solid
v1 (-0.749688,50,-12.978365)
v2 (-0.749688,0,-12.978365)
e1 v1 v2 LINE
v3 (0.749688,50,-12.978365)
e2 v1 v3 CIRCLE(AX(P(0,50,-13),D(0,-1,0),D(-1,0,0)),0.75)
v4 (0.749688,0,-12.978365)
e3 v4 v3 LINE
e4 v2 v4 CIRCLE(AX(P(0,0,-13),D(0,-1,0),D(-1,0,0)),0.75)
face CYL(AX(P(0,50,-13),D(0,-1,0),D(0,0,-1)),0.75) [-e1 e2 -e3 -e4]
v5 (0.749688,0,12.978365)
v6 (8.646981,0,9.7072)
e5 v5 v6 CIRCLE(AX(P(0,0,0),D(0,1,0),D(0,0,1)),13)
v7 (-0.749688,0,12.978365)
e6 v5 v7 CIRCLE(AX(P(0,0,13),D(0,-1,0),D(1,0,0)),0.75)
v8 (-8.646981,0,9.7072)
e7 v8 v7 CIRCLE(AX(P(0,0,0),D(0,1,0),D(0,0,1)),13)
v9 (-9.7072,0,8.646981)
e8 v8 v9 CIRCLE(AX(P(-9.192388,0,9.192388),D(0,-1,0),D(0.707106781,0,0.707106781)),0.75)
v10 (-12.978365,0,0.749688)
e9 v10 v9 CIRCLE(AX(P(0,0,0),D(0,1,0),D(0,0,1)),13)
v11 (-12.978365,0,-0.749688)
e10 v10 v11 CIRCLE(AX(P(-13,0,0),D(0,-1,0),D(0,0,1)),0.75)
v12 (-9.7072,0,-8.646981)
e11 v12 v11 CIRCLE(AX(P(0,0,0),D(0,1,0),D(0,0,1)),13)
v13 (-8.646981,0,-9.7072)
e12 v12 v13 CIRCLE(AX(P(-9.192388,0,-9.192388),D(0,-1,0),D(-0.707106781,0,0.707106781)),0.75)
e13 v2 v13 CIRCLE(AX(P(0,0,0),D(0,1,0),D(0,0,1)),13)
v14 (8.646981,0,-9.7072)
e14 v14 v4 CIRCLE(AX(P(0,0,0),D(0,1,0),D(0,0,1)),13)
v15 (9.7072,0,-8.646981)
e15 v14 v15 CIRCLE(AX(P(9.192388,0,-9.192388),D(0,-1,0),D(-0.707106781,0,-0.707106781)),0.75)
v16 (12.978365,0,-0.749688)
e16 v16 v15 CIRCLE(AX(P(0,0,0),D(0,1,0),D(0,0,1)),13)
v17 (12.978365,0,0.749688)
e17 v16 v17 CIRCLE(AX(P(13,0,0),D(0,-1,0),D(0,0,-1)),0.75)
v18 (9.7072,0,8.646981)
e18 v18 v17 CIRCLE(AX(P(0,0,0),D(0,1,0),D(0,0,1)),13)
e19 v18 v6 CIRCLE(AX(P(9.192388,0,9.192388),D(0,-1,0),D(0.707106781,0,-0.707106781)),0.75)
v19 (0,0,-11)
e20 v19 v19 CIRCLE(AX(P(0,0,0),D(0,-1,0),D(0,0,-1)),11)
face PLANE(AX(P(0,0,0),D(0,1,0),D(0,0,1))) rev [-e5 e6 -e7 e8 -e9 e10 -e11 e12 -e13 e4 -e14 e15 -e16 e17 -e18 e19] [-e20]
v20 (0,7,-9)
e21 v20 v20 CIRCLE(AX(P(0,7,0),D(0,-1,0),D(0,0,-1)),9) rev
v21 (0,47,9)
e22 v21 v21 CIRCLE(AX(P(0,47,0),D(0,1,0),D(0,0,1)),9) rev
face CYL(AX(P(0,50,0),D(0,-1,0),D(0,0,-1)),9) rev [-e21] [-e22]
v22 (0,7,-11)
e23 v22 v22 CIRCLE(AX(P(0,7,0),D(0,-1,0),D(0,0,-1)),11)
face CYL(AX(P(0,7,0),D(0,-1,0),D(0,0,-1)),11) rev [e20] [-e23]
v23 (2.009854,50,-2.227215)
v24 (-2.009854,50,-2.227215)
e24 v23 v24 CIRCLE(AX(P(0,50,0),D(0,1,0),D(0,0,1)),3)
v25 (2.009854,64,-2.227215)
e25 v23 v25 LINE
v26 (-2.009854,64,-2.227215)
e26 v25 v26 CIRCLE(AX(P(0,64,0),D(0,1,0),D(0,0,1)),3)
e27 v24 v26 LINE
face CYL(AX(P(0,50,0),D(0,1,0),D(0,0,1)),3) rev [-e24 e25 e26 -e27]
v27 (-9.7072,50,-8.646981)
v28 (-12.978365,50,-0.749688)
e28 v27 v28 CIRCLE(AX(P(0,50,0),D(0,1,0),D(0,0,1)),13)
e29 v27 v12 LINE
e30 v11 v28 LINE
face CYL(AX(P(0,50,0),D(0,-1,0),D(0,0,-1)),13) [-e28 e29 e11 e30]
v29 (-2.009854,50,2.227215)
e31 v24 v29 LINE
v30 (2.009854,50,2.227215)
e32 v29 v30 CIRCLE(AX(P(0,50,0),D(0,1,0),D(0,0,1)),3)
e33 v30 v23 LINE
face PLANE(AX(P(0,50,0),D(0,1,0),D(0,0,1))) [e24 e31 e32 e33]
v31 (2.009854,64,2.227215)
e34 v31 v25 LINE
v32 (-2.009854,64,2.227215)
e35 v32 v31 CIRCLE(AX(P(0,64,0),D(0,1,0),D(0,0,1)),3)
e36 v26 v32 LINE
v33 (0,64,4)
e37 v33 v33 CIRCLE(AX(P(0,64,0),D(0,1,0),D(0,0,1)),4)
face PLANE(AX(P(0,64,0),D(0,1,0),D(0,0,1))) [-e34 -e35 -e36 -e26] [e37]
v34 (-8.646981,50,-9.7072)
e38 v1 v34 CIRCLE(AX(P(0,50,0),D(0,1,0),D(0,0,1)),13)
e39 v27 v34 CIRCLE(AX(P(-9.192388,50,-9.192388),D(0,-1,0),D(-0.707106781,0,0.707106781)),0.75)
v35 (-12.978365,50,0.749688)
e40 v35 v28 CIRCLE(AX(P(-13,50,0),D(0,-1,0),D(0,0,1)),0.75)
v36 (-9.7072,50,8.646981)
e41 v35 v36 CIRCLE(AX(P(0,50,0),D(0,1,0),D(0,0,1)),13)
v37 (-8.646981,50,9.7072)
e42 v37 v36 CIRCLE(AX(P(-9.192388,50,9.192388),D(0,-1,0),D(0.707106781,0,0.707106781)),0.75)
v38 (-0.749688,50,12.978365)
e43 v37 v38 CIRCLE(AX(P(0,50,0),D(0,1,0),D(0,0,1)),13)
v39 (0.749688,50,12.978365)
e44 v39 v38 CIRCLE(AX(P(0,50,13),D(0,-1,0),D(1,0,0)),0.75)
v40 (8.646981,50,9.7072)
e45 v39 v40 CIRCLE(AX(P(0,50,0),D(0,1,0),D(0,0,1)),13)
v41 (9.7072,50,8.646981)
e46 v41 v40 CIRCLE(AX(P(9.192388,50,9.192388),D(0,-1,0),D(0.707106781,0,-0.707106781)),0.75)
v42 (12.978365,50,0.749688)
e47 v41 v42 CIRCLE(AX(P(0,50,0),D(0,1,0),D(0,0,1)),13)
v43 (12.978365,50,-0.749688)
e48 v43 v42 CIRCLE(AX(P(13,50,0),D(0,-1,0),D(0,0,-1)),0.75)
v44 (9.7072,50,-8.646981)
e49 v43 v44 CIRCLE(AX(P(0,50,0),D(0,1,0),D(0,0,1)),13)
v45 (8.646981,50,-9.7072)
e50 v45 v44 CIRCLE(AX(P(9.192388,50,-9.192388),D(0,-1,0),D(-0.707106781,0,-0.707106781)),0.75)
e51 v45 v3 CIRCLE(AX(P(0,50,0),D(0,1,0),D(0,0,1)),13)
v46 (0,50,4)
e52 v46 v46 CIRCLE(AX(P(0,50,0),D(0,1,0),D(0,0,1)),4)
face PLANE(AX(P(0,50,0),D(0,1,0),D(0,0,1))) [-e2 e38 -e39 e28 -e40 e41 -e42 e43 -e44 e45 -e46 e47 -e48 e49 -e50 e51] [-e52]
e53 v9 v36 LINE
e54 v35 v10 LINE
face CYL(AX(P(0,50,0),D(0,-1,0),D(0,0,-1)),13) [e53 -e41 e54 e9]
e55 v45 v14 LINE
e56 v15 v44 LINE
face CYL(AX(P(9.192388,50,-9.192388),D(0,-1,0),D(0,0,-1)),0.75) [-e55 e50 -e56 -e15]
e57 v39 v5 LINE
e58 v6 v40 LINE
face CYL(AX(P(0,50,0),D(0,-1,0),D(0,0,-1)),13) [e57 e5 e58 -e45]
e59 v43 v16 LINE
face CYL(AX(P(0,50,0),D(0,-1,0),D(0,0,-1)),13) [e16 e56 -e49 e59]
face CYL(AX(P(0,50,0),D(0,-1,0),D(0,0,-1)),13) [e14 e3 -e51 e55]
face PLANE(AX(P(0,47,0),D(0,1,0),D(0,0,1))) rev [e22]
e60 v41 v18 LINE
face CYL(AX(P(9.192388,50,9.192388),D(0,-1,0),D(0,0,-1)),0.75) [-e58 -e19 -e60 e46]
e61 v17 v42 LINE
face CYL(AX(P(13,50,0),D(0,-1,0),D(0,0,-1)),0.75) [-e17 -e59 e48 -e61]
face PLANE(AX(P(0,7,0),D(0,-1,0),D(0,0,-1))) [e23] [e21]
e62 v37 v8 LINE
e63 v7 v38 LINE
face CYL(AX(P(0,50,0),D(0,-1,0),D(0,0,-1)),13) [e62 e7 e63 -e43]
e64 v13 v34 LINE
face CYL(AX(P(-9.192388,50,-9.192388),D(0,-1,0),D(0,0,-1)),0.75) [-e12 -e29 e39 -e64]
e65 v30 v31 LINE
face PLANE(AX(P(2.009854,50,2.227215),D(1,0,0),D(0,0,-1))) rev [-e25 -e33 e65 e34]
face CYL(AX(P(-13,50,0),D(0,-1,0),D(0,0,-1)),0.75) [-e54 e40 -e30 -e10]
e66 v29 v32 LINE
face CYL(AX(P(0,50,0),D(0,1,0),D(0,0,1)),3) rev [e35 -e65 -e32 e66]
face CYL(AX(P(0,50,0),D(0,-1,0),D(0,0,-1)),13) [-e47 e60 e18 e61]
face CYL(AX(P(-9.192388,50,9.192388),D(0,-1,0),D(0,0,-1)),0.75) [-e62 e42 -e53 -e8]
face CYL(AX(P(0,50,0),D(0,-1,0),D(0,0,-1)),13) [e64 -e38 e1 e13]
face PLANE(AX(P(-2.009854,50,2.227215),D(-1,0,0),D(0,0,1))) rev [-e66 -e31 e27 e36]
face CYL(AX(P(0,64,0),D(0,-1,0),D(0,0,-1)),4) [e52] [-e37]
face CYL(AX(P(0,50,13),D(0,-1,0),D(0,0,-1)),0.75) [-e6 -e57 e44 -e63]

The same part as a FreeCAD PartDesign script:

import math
import FreeCAD as App
import Part
import Sketcher

V = App.Vector

doc = App.newDocument("Part")
params = doc.addObject("Spreadsheet::Sheet", "Params")
for row, (alias, value) in enumerate([
    ("sketch1_diameter", "26 mm"),
    ("pad1_length", "50 mm"),
    ("sketch2_diameter", "18 mm"),
    ("sketch3_diameter", "22 mm"),
    ("pocket2_length", "7 mm"),
    ("sketch4_diameter", "1.5 mm"),
    ("pad2_length", "50 mm"),
    ("sketch5_diameter", "18 mm"),
    ("pad3_length", "3 mm"),
    ("sketch6_diameter", "8 mm"),
    ("pad4_length", "14 mm"),
    ("sketch7_radius", "3 mm"),
    ("pocket3_length", "14 mm"),
], start=1):
    params.set(f"A{row}", alias)
    params.set(f"B{row}", "=" + value)
    params.setAlias(f"B{row}", alias)

body = doc.addObject("PartDesign::Body", "Body")

sketch1 = doc.addObject("Sketcher::SketchObject", "Sketch")
body.addObject(sketch1)
sketch1.AttachmentSupport = (doc.XZ_Plane, [""])
sketch1.MapMode = "FlatFace"
sketch1.addGeometry(Part.Circle(V(0, 0, 0), V(0, 0, 1), 13), False)
sketch1.addConstraint([
    Sketcher.Constraint("Coincident", 0, 3, -1, 1),
    Sketcher.Constraint("Diameter", 0, 26.0),
])
sketch1.setExpression("Constraints[1]", "Params.sketch1_diameter")
pad1 = doc.addObject("PartDesign::Pad", "Pad")
body.addObject(pad1)
pad1.Profile = sketch1
pad1.setExpression("Length", "Params.pad1_length")
pad1.Reversed = True

sketch2 = doc.addObject("Sketcher::SketchObject", "Sketch001")
body.addObject(sketch2)
sketch2.AttachmentSupport = (doc.XZ_Plane, [""])
sketch2.MapMode = "FlatFace"
sketch2.addGeometry(Part.Circle(V(0, 0, 0), V(0, 0, 1), 9), False)
sketch2.addConstraint([
    Sketcher.Constraint("Coincident", 0, 3, -1, 1),
    Sketcher.Constraint("Diameter", 0, 18.0),
])
sketch2.setExpression("Constraints[1]", "Params.sketch2_diameter")
pocket1 = doc.addObject("PartDesign::Pocket", "Pocket")
body.addObject(pocket1)
pocket1.Profile = sketch2
pocket1.Type = "ThroughAll"

sketch3 = doc.addObject("Sketcher::SketchObject", "Sketch002")
body.addObject(sketch3)
sketch3.AttachmentSupport = (doc.XZ_Plane, [""])
sketch3.MapMode = "FlatFace"
sketch3.addGeometry(Part.Circle(V(0, 0, 0), V(0, 0, 1), 11), False)
sketch3.addConstraint([
    Sketcher.Constraint("Coincident", 0, 3, -1, 1),
    Sketcher.Constraint("Diameter", 0, 22.0),
])
sketch3.setExpression("Constraints[1]", "Params.sketch3_diameter")
pocket2 = doc.addObject("PartDesign::Pocket", "Pocket001")
body.addObject(pocket2)
pocket2.Profile = sketch3
pocket2.setExpression("Length", "Params.pocket2_length")

sketch4 = doc.addObject("Sketcher::SketchObject", "Sketch003")
body.addObject(sketch4)
sketch4.AttachmentSupport = (doc.XZ_Plane, [""])
sketch4.MapMode = "FlatFace"
sketch4.addGeometry(Part.Circle(V(13, 0, 0), V(0, 0, 1), 0.8), False)
sketch4.addConstraint([
    Sketcher.Constraint("PointOnObject", 0, 3, -1),
    Sketcher.Constraint("Diameter", 0, 1.5),
    Sketcher.Constraint("DistanceX", -1, 1, 0, 3, 13.0),
])
sketch4.setExpression("Constraints[1]", "Params.sketch4_diameter")
pad2 = doc.addObject("PartDesign::Pad", "Pad001")
body.addObject(pad2)
pad2.Profile = sketch4
pad2.setExpression("Length", "Params.pad2_length")
pad2.Reversed = True
doc.recompute()

polarpattern = doc.addObject("PartDesign::PolarPattern", "PolarPattern")
body.addObject(polarpattern)
polarpattern.Originals = [pad2]
polarpattern.Axis = (doc.Y_Axis, [""])
polarpattern.Angle = 360
polarpattern.Occurrences = 8
body.Tip = polarpattern

sketch5 = doc.addObject("Sketcher::SketchObject", "Sketch004")
body.addObject(sketch5)
sketch5.AttachmentSupport = (doc.XZ_Plane, [""])
sketch5.MapMode = "FlatFace"
sketch5.AttachmentOffset = App.Placement(V(0, 0, -50), App.Rotation())
sketch5.addGeometry(Part.Circle(V(0, 0, 0), V(0, 0, 1), 9), False)
sketch5.addConstraint([
    Sketcher.Constraint("Coincident", 0, 3, -1, 1),
    Sketcher.Constraint("Diameter", 0, 18.0),
])
sketch5.setExpression("Constraints[1]", "Params.sketch5_diameter")
pad3 = doc.addObject("PartDesign::Pad", "Pad002")
body.addObject(pad3)
pad3.Profile = sketch5
pad3.setExpression("Length", "Params.pad3_length")

sketch6 = doc.addObject("Sketcher::SketchObject", "Sketch005")
body.addObject(sketch6)
sketch6.AttachmentSupport = (doc.XZ_Plane, [""])
sketch6.MapMode = "FlatFace"
sketch6.AttachmentOffset = App.Placement(V(0, 0, -50), App.Rotation())
sketch6.addGeometry(Part.Circle(V(0, 0, 0), V(0, 0, 1), 4), False)
sketch6.addConstraint([
    Sketcher.Constraint("Coincident", 0, 3, -1, 1),
    Sketcher.Constraint("Diameter", 0, 8.0),
])
sketch6.setExpression("Constraints[1]", "Params.sketch6_diameter")
pad4 = doc.addObject("PartDesign::Pad", "Pad003")
body.addObject(pad4)
pad4.Profile = sketch6
pad4.setExpression("Length", "Params.pad4_length")
pad4.Reversed = True

sketch7 = doc.addObject("Sketcher::SketchObject", "Sketch006")
body.addObject(sketch7)
sketch7.AttachmentSupport = (doc.XZ_Plane, [""])
sketch7.MapMode = "FlatFace"
sketch7.AttachmentOffset = App.Placement(V(0, 0, -64), App.Rotation())
sketch7.addGeometry([
    Part.LineSegment(V(-2, -2.2, 0), V(-2, 2.2, 0)),
    Part.ArcOfCircle(Part.Circle(V(0, 0, 0), V(0, 0, 1), 3), math.radians(48), math.radians(132)),
    Part.LineSegment(V(2, 2.2, 0), V(2, -2.2, 0)),
    Part.ArcOfCircle(Part.Circle(V(0, 0, 0), V(0, 0, 1), 3), math.radians(-132), math.radians(-48)),
], False)
sketch7.addConstraint([
    Sketcher.Constraint("Coincident", 0, 2, 1, 2),
    Sketcher.Constraint("Coincident", 1, 1, 2, 1),
    Sketcher.Constraint("Coincident", 2, 2, 3, 2),
    Sketcher.Constraint("Coincident", 3, 1, 0, 1),
    Sketcher.Constraint("Vertical", 0),
    Sketcher.Constraint("Vertical", 2),
    Sketcher.Constraint("Coincident", 1, 3, -1, 1),
    Sketcher.Constraint("Coincident", 3, 3, -1, 1),
    Sketcher.Constraint("Equal", 1, 3),
    Sketcher.Constraint("Horizontal", 0, 2, 1, 1),
    Sketcher.Constraint("Radius", 1, 3.0),
    Sketcher.Constraint("DistanceY", 0, 1, 0, 2, 4.454431),
])
sketch7.setExpression("Constraints[10]", "Params.sketch7_radius")
pocket3 = doc.addObject("PartDesign::Pocket", "Pocket002")
body.addObject(pocket3)
pocket3.Profile = sketch7
pocket3.setExpression("Length", "Params.pocket3_length")
pocket3.Reversed = True

doc.recompute()
